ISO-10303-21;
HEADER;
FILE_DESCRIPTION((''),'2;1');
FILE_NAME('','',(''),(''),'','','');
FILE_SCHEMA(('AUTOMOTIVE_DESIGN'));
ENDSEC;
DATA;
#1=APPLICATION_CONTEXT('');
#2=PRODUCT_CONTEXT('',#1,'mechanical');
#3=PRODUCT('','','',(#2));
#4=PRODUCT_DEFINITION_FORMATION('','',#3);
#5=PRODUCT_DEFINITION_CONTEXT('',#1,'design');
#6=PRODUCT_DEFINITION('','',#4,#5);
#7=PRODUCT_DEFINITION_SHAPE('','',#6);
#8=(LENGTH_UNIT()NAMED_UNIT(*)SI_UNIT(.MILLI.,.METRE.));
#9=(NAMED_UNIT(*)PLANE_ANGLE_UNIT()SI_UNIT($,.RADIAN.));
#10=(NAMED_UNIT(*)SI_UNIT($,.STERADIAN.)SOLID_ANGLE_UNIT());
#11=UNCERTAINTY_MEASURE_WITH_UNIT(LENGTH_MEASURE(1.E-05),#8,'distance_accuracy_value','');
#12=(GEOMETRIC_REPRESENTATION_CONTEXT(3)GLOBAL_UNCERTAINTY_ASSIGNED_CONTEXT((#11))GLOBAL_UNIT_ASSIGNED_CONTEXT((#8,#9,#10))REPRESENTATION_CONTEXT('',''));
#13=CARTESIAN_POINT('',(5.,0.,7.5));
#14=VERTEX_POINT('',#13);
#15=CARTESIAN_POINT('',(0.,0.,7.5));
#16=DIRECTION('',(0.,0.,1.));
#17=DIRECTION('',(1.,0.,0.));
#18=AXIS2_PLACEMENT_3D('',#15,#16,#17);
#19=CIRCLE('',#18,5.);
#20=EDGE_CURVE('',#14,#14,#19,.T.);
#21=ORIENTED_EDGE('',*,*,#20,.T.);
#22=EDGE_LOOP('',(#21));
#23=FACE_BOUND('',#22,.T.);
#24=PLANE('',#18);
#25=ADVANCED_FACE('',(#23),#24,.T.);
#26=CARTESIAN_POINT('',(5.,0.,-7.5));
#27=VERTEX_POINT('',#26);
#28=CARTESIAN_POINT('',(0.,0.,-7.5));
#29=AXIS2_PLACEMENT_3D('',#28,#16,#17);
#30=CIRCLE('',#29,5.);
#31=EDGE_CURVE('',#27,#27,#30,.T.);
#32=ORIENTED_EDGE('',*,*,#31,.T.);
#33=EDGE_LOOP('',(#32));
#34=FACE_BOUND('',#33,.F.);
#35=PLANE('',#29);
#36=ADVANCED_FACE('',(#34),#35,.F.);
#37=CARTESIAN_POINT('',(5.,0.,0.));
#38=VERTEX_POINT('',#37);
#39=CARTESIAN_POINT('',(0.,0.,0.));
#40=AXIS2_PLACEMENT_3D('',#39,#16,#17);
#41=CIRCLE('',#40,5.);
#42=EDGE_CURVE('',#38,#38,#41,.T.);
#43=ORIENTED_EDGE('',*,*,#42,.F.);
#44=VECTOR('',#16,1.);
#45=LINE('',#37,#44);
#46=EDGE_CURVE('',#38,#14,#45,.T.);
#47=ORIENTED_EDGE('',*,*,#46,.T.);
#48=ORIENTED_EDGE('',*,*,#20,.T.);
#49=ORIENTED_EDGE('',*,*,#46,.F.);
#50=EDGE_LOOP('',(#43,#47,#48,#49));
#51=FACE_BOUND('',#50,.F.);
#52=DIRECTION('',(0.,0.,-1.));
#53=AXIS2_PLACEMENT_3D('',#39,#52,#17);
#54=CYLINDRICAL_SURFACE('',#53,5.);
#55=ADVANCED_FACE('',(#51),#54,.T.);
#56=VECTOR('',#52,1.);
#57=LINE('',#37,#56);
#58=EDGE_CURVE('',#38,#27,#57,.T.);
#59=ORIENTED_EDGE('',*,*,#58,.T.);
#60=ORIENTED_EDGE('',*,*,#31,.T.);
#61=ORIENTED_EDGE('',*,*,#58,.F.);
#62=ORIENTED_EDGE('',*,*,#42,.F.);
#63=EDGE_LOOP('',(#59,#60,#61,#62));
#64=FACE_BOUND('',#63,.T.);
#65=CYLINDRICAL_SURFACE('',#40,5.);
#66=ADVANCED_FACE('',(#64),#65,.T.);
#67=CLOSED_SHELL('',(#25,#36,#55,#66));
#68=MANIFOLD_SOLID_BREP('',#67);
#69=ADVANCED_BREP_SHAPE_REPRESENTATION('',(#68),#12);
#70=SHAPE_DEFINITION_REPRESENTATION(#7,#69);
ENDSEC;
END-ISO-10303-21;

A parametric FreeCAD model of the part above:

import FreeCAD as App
import Part
import Sketcher
from FreeCAD import Vector
Q = App.Units.Quantity

doc = App.newDocument("Part")
body = doc.addObject("PartDesign::Body", "Body")

sketch1 = doc.addObject("Sketcher::SketchObject", "Sketch")
body.addObject(sketch1)
sketch1.AttachmentSupport = (doc.XY_Plane, [""])
sketch1.MapMode = "FlatFace"
sketch1.addGeometry(Part.Circle(Vector(0, 0, 0), Vector(0, 0, 1), 5), False)
sketch1.addConstraint([
    Sketcher.Constraint("Coincident", 0, 3, -1, 1),
    Sketcher.Constraint("Diameter", 0, Q("10 mm")),
])
pad1 = doc.addObject("PartDesign::Pad", "Pad")
body.addObject(pad1)
pad1.Profile = sketch1
pad1.Length = 15
pad1.Midplane = True

doc.recompute()
